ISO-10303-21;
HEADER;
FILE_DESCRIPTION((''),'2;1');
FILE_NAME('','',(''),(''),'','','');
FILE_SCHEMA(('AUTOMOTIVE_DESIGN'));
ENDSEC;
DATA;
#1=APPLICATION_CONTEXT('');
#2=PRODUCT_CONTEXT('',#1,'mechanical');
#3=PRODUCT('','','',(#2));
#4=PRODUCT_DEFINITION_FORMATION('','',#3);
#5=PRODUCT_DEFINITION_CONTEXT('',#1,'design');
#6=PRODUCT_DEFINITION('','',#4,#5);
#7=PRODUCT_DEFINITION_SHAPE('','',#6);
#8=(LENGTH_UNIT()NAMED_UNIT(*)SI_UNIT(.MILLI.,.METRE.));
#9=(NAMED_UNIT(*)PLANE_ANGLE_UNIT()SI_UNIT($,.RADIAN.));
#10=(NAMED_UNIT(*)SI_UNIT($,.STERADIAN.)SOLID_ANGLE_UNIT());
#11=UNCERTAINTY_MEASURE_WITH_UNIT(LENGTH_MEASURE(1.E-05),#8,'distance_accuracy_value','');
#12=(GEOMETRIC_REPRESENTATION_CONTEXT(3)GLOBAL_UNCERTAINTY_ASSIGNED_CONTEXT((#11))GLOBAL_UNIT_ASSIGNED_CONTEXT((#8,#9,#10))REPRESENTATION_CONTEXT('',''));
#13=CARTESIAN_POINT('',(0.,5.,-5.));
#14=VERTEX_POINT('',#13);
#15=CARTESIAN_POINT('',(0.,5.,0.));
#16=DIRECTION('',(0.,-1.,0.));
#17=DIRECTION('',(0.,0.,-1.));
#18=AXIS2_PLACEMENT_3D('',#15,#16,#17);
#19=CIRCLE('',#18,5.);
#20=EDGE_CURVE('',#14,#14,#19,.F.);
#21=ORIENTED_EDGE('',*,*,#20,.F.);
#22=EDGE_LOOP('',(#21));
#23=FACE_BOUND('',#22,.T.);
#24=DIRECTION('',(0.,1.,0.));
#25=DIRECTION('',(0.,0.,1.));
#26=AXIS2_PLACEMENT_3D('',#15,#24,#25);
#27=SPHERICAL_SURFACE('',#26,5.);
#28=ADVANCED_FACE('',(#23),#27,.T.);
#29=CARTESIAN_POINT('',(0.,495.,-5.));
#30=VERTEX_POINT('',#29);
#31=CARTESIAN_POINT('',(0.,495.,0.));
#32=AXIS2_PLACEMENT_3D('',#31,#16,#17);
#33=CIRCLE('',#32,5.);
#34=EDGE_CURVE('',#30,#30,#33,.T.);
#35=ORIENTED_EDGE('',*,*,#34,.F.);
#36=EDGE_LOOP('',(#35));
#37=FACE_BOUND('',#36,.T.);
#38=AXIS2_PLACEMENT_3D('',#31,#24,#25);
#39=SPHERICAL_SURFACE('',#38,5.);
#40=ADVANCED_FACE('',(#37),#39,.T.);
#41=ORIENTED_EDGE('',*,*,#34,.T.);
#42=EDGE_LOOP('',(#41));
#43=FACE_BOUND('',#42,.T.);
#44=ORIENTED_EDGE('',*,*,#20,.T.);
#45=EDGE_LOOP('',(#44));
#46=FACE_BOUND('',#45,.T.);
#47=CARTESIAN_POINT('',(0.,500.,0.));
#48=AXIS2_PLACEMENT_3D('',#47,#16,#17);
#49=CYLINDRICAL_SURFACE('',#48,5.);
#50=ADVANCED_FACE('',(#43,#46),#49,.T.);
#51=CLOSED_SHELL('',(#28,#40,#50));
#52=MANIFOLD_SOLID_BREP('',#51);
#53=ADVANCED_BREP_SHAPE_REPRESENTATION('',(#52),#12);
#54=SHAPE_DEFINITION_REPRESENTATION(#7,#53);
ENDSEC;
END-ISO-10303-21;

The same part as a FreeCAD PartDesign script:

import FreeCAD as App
import Part
import Sketcher
from FreeCAD import Vector


def edges_at(feature, points):
    """Names of the edges that pass closest to the given points."""
    edges = feature.Shape.Edges
    near = lambda p: min(range(len(edges)), key=lambda i: edges[i].distToShape(Part.Vertex(*p))[0])
    return sorted({f"Edge{near(p) + 1}" for p in points})

doc = App.newDocument("Part")
body = doc.addObject("PartDesign::Body", "Body")

sketch1 = doc.addObject("Sketcher::SketchObject", "Sketch")
body.addObject(sketch1)
sketch1.AttachmentSupport = (doc.XZ_Plane, [""])
sketch1.MapMode = "FlatFace"
sketch1.addGeometry(Part.Circle(Vector(0, 0, 0), Vector(0, 0, 1), 5), False)
sketch1.addConstraint(Sketcher.Constraint("Coincident", 0, 3, -1, 1))
sketch1.addConstraint(Sketcher.Constraint("Diameter", 0, 10.0))
pad1 = doc.addObject("PartDesign::Pad", "Pad")
body.addObject(pad1)
pad1.Profile = sketch1
pad1.Length = 500
pad1.Reversed = True
doc.recompute()

fillet = doc.addObject("PartDesign::Fillet", "Fillet")
body.addObject(fillet)
fillet.Base = (pad1, edges_at(pad1, [(0, 0, -5), (0, 500, -5)]))
fillet.Radius = 5

doc.recompute()
